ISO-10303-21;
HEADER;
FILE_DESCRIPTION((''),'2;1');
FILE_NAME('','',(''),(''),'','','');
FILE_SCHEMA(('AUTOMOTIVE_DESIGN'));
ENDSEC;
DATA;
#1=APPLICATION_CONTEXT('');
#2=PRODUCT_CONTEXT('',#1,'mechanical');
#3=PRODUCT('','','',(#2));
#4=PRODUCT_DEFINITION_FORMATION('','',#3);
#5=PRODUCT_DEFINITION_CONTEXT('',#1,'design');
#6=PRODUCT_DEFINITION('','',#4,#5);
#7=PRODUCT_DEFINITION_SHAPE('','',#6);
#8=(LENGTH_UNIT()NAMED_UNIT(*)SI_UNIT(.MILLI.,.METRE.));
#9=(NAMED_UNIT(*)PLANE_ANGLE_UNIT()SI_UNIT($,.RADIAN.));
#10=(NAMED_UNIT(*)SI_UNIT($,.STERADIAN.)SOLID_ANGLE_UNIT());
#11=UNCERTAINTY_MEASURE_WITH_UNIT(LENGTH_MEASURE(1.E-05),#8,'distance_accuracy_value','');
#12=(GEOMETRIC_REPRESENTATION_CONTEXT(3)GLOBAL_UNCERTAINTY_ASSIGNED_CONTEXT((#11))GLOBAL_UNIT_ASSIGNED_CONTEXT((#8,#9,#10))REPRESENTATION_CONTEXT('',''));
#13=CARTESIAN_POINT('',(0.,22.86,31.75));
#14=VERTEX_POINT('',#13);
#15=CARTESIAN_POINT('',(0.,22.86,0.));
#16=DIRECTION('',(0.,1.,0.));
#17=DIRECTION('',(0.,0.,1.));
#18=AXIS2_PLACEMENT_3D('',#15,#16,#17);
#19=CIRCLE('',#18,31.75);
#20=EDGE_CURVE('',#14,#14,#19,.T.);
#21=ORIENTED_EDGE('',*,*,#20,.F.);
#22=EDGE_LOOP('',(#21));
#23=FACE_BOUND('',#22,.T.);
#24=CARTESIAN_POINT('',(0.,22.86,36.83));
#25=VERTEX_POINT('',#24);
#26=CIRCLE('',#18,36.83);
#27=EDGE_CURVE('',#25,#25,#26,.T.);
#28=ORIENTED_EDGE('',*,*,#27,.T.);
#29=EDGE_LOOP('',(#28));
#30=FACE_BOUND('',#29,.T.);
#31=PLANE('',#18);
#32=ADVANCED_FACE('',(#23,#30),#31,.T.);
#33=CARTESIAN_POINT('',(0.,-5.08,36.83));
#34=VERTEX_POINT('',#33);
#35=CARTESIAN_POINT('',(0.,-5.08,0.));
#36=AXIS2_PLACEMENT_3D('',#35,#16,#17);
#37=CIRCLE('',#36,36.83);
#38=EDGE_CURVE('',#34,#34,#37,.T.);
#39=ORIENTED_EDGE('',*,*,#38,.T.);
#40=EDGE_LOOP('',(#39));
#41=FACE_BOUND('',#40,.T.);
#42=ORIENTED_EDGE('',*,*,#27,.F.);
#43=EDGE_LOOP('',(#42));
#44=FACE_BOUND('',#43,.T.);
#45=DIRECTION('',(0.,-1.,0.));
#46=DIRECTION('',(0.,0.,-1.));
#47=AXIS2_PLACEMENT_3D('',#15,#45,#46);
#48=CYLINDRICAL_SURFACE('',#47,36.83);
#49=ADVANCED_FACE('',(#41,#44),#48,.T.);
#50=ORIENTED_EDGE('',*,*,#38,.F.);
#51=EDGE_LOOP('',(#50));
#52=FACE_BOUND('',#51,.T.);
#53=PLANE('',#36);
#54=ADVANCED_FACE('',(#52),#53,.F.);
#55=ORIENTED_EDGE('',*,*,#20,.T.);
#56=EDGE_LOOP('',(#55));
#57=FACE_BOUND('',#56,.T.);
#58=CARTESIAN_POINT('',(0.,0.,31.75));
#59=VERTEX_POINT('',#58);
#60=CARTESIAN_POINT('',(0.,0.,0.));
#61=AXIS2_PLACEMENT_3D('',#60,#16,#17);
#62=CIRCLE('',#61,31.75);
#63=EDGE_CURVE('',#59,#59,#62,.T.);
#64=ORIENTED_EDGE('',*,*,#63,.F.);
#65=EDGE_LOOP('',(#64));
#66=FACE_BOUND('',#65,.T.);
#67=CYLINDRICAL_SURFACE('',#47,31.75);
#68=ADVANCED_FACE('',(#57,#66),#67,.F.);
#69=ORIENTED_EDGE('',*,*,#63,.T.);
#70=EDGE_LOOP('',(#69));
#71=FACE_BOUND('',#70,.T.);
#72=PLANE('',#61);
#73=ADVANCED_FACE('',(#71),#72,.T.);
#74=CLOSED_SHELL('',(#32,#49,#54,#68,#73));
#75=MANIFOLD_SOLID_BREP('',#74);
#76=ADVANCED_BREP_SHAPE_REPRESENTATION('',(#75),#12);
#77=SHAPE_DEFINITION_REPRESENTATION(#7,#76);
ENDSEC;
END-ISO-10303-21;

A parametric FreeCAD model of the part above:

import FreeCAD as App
import Part
import Sketcher

V = App.Vector
Q = App.Units.Quantity


def faces_at(feature, points):
    """Names of the faces that lie closest to the given points."""
    faces = feature.Shape.Faces
    near = lambda p: min(range(len(faces)), key=lambda i: faces[i].distToShape(Part.Vertex(*p))[0])
    return sorted({f"Face{near(p) + 1}" for p in points})

doc = App.newDocument("Part")
body = doc.addObject("PartDesign::Body", "Body")

# Sketch on XZ plane
sketch1 = body.newObject("Sketcher::SketchObject", "Sketch")
sketch1.AttachmentSupport = (doc.getObject("XZ_Plane"), [""])
sketch1.MapMode = "FlatFace"
sketch1.addGeometry(Part.Circle(V(0, 0, 0), V(0, 0, 1), 32), False)
sketch1.addConstraint(Sketcher.Constraint("Coincident", 0, 3, -1, 1))
sketch1.addConstraint(Sketcher.Constraint("Diameter", 0, Q("2.5 in")))
pad1 = body.newObject("PartDesign::Pad", "Pad")
pad1.Profile = sketch1
pad1.Length = Q("0.9 in")
pad1.Reversed = True
doc.recompute()

thickness = body.newObject("PartDesign::Thickness", "Thickness")
thickness.Base = (pad1, faces_at(pad1, [(0, 22.86, 0)]))
thickness.Value = Q("0.2 in")
thickness.Reversed = False
thickness.Join = "Intersection"

doc.recompute()
